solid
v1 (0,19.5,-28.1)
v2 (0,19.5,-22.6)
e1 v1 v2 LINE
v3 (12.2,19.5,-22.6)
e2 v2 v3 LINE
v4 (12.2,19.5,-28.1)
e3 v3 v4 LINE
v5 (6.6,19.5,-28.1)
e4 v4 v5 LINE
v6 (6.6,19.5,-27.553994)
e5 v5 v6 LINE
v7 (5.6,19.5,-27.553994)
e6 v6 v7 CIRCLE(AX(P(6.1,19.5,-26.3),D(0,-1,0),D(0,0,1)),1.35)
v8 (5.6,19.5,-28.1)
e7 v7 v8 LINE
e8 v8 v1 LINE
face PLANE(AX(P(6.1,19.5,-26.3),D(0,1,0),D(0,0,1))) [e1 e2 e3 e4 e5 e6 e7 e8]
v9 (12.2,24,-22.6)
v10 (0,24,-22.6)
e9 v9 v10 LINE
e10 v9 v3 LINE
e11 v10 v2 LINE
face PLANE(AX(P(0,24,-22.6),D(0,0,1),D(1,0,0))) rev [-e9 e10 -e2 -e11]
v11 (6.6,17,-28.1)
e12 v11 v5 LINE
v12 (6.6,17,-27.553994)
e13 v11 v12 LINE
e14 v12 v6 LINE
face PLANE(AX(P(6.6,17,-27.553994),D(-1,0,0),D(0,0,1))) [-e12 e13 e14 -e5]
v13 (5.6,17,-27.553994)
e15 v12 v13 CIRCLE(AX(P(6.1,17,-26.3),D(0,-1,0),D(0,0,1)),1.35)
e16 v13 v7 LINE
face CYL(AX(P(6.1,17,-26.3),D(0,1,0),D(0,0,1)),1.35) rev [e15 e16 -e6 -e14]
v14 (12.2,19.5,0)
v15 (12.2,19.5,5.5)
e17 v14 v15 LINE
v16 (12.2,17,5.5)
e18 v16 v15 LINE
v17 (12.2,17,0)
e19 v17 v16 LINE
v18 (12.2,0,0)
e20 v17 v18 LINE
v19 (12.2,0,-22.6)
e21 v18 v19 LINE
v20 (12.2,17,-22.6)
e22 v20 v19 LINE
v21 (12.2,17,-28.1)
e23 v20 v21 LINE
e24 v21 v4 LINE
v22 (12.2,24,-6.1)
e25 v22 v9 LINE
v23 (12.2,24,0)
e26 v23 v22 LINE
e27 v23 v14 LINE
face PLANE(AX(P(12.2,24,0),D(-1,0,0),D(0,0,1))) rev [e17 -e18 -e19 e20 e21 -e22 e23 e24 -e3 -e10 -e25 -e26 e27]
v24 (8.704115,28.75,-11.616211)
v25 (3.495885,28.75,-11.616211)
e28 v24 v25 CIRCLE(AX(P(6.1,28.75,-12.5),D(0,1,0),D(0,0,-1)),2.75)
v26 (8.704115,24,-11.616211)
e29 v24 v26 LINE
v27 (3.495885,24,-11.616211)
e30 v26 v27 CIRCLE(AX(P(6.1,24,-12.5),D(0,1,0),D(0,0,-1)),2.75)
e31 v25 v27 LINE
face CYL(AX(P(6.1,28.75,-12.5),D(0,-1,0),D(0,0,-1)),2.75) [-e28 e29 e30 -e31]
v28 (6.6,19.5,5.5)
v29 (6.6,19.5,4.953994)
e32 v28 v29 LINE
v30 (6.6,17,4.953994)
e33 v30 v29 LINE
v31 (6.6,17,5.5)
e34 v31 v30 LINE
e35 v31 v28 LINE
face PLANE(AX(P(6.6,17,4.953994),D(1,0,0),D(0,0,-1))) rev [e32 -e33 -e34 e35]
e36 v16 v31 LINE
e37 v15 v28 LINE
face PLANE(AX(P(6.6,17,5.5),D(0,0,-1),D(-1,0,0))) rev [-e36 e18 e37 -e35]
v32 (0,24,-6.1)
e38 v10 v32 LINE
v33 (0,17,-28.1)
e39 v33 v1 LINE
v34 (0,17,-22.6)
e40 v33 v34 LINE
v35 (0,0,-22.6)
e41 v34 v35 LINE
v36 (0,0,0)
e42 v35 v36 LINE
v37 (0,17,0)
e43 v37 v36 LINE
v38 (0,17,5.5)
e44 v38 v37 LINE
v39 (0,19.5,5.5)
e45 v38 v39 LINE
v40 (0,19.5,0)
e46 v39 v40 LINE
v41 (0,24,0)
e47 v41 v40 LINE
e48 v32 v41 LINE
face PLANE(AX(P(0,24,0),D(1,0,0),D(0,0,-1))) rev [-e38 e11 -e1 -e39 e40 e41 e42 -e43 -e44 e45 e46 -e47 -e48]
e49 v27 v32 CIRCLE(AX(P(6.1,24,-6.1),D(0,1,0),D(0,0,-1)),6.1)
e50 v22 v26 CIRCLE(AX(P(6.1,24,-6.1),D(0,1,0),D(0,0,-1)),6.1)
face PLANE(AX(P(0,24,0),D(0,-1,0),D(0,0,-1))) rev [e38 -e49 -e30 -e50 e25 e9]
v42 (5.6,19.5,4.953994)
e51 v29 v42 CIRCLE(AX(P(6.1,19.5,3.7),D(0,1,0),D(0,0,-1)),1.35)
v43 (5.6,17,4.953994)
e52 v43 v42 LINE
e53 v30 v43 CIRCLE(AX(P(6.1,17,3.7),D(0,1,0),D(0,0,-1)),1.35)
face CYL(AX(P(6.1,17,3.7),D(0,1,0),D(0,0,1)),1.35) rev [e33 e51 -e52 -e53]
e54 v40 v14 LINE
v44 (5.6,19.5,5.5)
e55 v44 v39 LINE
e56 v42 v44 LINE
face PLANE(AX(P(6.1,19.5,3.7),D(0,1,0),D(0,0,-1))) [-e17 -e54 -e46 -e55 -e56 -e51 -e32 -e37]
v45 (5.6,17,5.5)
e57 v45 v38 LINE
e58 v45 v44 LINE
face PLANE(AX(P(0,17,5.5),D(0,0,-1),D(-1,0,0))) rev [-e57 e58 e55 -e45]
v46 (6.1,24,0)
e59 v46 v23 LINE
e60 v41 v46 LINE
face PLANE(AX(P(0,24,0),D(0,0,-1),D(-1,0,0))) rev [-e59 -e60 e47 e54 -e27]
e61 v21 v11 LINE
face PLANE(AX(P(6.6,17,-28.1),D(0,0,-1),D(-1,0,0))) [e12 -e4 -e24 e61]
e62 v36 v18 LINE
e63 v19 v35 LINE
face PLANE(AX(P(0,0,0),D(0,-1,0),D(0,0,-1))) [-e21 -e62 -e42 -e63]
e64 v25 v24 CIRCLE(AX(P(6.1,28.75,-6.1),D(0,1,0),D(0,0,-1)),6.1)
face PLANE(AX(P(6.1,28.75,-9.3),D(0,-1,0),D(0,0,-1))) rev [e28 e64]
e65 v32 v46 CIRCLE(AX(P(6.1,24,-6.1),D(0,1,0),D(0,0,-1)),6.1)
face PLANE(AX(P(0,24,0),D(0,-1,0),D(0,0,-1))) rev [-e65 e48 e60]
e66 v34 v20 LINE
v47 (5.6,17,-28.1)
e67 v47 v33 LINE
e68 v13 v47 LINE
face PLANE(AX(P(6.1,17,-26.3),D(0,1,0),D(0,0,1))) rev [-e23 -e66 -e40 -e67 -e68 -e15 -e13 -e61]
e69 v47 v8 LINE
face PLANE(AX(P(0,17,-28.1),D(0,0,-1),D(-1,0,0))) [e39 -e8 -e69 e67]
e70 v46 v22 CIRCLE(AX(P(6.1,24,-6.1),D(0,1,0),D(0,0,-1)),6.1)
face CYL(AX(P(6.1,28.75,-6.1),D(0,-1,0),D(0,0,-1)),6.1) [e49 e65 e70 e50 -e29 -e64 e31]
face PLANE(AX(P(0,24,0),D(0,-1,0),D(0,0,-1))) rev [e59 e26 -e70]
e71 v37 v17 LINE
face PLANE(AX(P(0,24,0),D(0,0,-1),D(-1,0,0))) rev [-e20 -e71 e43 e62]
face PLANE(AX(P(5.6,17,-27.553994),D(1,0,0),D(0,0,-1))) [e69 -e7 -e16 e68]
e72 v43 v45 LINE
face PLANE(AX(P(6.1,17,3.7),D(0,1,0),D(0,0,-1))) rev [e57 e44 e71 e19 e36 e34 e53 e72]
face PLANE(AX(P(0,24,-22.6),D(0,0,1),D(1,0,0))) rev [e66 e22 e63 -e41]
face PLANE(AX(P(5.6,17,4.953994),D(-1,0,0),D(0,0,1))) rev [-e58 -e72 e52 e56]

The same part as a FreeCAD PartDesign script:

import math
import FreeCAD as App
import Part
import Sketcher
from FreeCAD import Vector

doc = App.newDocument("Part")
body = doc.addObject("PartDesign::Body", "Body")

# Sketch on XZ plane
sketch1 = doc.addObject("Sketcher::SketchObject", "Sketch")
body.addObject(sketch1)
sketch1.AttachmentSupport = (doc.XZ_Plane, [""])
sketch1.MapMode = "FlatFace"
sketch1.addGeometry(Part.LineSegment(Vector(0, -23, 0), Vector(0, 0, 0)), False)
sketch1.addGeometry(Part.LineSegment(Vector(0, 0, 0), Vector(12, 0, 0)), False)
sketch1.addGeometry(Part.LineSegment(Vector(12, 0, 0), Vector(12, -23, 0)), False)
sketch1.addGeometry(Part.LineSegment(Vector(12, -23, 0), Vector(0, -23, 0)), False)
sketch1.addConstraint(Sketcher.Constraint("Coincident", 0, 2, 1, 1))
sketch1.addConstraint(Sketcher.Constraint("Coincident", 1, 2, 2, 1))
sketch1.addConstraint(Sketcher.Constraint("Coincident", 2, 2, 3, 1))
sketch1.addConstraint(Sketcher.Constraint("Coincident", 3, 2, 0, 1))
sketch1.addConstraint(Sketcher.Constraint("Vertical", 0))
sketch1.addConstraint(Sketcher.Constraint("Horizontal", 1))
sketch1.addConstraint(Sketcher.Constraint("Vertical", 2))
sketch1.addConstraint(Sketcher.Constraint("Horizontal", 3))
sketch1.addConstraint(Sketcher.Constraint("Coincident", 0, 2, -1, 1))
sketch1.addConstraint(Sketcher.Constraint("DistanceX", 1, 1, 1, 2, 12.2))
sketch1.addConstraint(Sketcher.Constraint("DistanceY", 0, 1, 0, 2, 22.6))
pad1 = doc.addObject("PartDesign::Pad", "Pad")
body.addObject(pad1)
pad1.Profile = sketch1
pad1.Length = 24
pad1.Reversed = True

# Sketch on XZ plane
sketch2 = doc.addObject("Sketcher::SketchObject", "Sketch001")
body.addObject(sketch2)
sketch2.AttachmentSupport = (doc.XZ_Plane, [""])
sketch2.MapMode = "FlatFace"
sketch2.AttachmentOffset = App.Placement(Vector(0, 0, -19.5), App.Rotation())
sketch2.addGeometry(Part.LineSegment(Vector(0, -22.6, 0), Vector(12.2, -22.6, 0)), False)
sketch2.addGeometry(Part.LineSegment(Vector(12.2, -22.6, 0), Vector(12.2, -28.1, 0)), False)
sketch2.addGeometry(Part.LineSegment(Vector(12.2, -28.1, 0), Vector(6.6, -28.1, 0)), False)
sketch2.addGeometry(Part.LineSegment(Vector(6.6, -28.1, 0), Vector(6.6, -27.6, 0)), False)
sketch2.addGeometry(Part.ArcOfCircle(Part.Circle(Vector(6.1, -26.3, 0), Vector(0, 0, 1), 1.4), math.radians(-68), math.radians(248)), False)
sketch2.addGeometry(Part.LineSegment(Vector(5.6, -27.6, 0), Vector(5.6, -28.1, 0)), False)
sketch2.addGeometry(Part.LineSegment(Vector(5.6, -28.1, 0), Vector(0, -28.1, 0)), False)
sketch2.addGeometry(Part.LineSegment(Vector(0, -28.1, 0), Vector(0, -22.6, 0)), False)
sketch2.addConstraint(Sketcher.Constraint("Coincident", 0, 2, 1, 1))
sketch2.addConstraint(Sketcher.Constraint("Coincident", 1, 2, 2, 1))
sketch2.addConstraint(Sketcher.Constraint("Coincident", 2, 2, 3, 1))
sketch2.addConstraint(Sketcher.Constraint("Coincident", 3, 2, 4, 1))
sketch2.addConstraint(Sketcher.Constraint("Coincident", 4, 2, 5, 1))
sketch2.addConstraint(Sketcher.Constraint("Coincident", 5, 2, 6, 1))
sketch2.addConstraint(Sketcher.Constraint("Coincident", 6, 2, 7, 1))
sketch2.addConstraint(Sketcher.Constraint("Coincident", 7, 2, 0, 1))
sketch2.addConstraint(Sketcher.Constraint("Horizontal", 0))
sketch2.addConstraint(Sketcher.Constraint("Vertical", 1))
sketch2.addConstraint(Sketcher.Constraint("Horizontal", 2))
sketch2.addConstraint(Sketcher.Constraint("Vertical", 3))
sketch2.addConstraint(Sketcher.Constraint("Vertical", 5))
sketch2.addConstraint(Sketcher.Constraint("Horizontal", 6))
sketch2.addConstraint(Sketcher.Constraint("Vertical", 7))
sketch2.addConstraint(Sketcher.Constraint("PointOnObject", 6, 2, -2))
sketch2.addConstraint(Sketcher.Constraint("Horizontal", 3, 2, 4, 2))
sketch2.addConstraint(Sketcher.Constraint("Horizontal", 2, 2, 5, 2))
sketch2.addConstraint(Sketcher.Constraint("Equal", 2, 6))
sketch2.addConstraint(Sketcher.Constraint("Radius", 4, 1.35))
sketch2.addConstraint(Sketcher.Constraint("DistanceX", 0, 1, 0, 2, 12.2))
sketch2.addConstraint(Sketcher.Constraint("DistanceX", 2, 2, 2, 1, 5.6))
sketch2.addConstraint(Sketcher.Constraint("DistanceY", 1, 2, 1, 1, 5.5))
sketch2.addConstraint(Sketcher.Constraint("DistanceY", 4, 3, -1, 1, 26.3))
sketch2.addConstraint(Sketcher.Constraint("DistanceY", 0, 2, -1, 1, 22.6))
pad2 = doc.addObject("PartDesign::Pad", "Pad001")
body.addObject(pad2)
pad2.Profile = sketch2
pad2.Length = 2.5
doc.recompute()

datumplane = doc.addObject("PartDesign::Plane", "DatumPlane")
body.addObject(datumplane)
datumplane.AttachmentSupport = (doc.XY_Plane, [""])
datumplane.MapMode = "FlatFace"
datumplane.AttachmentOffset = App.Placement(Vector(0, 0, -11.3), App.Rotation())
mirrored = doc.addObject("PartDesign::Mirrored", "Mirrored")
body.addObject(mirrored)
mirrored.Originals = [pad2]
mirrored.MirrorPlane = (datumplane, [""])
body.Tip = mirrored

# Sketch on XZ plane
sketch3 = doc.addObject("Sketcher::SketchObject", "Sketch002")
body.addObject(sketch3)
sketch3.AttachmentSupport = (doc.XZ_Plane, [""])
sketch3.MapMode = "FlatFace"
sketch3.AttachmentOffset = App.Placement(Vector(0, 0, -24), App.Rotation())
sketch3.addGeometry(Part.ArcOfCircle(Part.Circle(Vector(6.1, -6.1, 0), Vector(0, 0, 1), 6.1), math.radians(-65), math.radians(245)), False)
sketch3.addGeometry(Part.ArcOfCircle(Part.Circle(Vector(6.1, -12.5, 0), Vector(0, 0, 1), 2.8), math.radians(161), math.radians(379)), False)
sketch3.addConstraint(Sketcher.Constraint("Coincident", 0, 1, 1, 2))
sketch3.addConstraint(Sketcher.Constraint("Coincident", 1, 1, 0, 2))
sketch3.addConstraint(Sketcher.Constraint("Horizontal", 0, 1, 1, 1))
sketch3.addConstraint(Sketcher.Constraint("Radius", 0, 6.1))
sketch3.addConstraint(Sketcher.Constraint("Radius", 1, 2.75))
sketch3.addConstraint(Sketcher.Constraint("DistanceX", -1, 1, 0, 3, 6.1))
sketch3.addConstraint(Sketcher.Constraint("DistanceY", 0, 3, -1, 1, 6.1))
sketch3.addConstraint(Sketcher.Constraint("DistanceY", 1, 3, -1, 1, 12.5))
pad3 = doc.addObject("PartDesign::Pad", "Pad002")
body.addObject(pad3)
pad3.Profile = sketch3
pad3.Length = 4.75
pad3.Reversed = True

doc.recompute()
